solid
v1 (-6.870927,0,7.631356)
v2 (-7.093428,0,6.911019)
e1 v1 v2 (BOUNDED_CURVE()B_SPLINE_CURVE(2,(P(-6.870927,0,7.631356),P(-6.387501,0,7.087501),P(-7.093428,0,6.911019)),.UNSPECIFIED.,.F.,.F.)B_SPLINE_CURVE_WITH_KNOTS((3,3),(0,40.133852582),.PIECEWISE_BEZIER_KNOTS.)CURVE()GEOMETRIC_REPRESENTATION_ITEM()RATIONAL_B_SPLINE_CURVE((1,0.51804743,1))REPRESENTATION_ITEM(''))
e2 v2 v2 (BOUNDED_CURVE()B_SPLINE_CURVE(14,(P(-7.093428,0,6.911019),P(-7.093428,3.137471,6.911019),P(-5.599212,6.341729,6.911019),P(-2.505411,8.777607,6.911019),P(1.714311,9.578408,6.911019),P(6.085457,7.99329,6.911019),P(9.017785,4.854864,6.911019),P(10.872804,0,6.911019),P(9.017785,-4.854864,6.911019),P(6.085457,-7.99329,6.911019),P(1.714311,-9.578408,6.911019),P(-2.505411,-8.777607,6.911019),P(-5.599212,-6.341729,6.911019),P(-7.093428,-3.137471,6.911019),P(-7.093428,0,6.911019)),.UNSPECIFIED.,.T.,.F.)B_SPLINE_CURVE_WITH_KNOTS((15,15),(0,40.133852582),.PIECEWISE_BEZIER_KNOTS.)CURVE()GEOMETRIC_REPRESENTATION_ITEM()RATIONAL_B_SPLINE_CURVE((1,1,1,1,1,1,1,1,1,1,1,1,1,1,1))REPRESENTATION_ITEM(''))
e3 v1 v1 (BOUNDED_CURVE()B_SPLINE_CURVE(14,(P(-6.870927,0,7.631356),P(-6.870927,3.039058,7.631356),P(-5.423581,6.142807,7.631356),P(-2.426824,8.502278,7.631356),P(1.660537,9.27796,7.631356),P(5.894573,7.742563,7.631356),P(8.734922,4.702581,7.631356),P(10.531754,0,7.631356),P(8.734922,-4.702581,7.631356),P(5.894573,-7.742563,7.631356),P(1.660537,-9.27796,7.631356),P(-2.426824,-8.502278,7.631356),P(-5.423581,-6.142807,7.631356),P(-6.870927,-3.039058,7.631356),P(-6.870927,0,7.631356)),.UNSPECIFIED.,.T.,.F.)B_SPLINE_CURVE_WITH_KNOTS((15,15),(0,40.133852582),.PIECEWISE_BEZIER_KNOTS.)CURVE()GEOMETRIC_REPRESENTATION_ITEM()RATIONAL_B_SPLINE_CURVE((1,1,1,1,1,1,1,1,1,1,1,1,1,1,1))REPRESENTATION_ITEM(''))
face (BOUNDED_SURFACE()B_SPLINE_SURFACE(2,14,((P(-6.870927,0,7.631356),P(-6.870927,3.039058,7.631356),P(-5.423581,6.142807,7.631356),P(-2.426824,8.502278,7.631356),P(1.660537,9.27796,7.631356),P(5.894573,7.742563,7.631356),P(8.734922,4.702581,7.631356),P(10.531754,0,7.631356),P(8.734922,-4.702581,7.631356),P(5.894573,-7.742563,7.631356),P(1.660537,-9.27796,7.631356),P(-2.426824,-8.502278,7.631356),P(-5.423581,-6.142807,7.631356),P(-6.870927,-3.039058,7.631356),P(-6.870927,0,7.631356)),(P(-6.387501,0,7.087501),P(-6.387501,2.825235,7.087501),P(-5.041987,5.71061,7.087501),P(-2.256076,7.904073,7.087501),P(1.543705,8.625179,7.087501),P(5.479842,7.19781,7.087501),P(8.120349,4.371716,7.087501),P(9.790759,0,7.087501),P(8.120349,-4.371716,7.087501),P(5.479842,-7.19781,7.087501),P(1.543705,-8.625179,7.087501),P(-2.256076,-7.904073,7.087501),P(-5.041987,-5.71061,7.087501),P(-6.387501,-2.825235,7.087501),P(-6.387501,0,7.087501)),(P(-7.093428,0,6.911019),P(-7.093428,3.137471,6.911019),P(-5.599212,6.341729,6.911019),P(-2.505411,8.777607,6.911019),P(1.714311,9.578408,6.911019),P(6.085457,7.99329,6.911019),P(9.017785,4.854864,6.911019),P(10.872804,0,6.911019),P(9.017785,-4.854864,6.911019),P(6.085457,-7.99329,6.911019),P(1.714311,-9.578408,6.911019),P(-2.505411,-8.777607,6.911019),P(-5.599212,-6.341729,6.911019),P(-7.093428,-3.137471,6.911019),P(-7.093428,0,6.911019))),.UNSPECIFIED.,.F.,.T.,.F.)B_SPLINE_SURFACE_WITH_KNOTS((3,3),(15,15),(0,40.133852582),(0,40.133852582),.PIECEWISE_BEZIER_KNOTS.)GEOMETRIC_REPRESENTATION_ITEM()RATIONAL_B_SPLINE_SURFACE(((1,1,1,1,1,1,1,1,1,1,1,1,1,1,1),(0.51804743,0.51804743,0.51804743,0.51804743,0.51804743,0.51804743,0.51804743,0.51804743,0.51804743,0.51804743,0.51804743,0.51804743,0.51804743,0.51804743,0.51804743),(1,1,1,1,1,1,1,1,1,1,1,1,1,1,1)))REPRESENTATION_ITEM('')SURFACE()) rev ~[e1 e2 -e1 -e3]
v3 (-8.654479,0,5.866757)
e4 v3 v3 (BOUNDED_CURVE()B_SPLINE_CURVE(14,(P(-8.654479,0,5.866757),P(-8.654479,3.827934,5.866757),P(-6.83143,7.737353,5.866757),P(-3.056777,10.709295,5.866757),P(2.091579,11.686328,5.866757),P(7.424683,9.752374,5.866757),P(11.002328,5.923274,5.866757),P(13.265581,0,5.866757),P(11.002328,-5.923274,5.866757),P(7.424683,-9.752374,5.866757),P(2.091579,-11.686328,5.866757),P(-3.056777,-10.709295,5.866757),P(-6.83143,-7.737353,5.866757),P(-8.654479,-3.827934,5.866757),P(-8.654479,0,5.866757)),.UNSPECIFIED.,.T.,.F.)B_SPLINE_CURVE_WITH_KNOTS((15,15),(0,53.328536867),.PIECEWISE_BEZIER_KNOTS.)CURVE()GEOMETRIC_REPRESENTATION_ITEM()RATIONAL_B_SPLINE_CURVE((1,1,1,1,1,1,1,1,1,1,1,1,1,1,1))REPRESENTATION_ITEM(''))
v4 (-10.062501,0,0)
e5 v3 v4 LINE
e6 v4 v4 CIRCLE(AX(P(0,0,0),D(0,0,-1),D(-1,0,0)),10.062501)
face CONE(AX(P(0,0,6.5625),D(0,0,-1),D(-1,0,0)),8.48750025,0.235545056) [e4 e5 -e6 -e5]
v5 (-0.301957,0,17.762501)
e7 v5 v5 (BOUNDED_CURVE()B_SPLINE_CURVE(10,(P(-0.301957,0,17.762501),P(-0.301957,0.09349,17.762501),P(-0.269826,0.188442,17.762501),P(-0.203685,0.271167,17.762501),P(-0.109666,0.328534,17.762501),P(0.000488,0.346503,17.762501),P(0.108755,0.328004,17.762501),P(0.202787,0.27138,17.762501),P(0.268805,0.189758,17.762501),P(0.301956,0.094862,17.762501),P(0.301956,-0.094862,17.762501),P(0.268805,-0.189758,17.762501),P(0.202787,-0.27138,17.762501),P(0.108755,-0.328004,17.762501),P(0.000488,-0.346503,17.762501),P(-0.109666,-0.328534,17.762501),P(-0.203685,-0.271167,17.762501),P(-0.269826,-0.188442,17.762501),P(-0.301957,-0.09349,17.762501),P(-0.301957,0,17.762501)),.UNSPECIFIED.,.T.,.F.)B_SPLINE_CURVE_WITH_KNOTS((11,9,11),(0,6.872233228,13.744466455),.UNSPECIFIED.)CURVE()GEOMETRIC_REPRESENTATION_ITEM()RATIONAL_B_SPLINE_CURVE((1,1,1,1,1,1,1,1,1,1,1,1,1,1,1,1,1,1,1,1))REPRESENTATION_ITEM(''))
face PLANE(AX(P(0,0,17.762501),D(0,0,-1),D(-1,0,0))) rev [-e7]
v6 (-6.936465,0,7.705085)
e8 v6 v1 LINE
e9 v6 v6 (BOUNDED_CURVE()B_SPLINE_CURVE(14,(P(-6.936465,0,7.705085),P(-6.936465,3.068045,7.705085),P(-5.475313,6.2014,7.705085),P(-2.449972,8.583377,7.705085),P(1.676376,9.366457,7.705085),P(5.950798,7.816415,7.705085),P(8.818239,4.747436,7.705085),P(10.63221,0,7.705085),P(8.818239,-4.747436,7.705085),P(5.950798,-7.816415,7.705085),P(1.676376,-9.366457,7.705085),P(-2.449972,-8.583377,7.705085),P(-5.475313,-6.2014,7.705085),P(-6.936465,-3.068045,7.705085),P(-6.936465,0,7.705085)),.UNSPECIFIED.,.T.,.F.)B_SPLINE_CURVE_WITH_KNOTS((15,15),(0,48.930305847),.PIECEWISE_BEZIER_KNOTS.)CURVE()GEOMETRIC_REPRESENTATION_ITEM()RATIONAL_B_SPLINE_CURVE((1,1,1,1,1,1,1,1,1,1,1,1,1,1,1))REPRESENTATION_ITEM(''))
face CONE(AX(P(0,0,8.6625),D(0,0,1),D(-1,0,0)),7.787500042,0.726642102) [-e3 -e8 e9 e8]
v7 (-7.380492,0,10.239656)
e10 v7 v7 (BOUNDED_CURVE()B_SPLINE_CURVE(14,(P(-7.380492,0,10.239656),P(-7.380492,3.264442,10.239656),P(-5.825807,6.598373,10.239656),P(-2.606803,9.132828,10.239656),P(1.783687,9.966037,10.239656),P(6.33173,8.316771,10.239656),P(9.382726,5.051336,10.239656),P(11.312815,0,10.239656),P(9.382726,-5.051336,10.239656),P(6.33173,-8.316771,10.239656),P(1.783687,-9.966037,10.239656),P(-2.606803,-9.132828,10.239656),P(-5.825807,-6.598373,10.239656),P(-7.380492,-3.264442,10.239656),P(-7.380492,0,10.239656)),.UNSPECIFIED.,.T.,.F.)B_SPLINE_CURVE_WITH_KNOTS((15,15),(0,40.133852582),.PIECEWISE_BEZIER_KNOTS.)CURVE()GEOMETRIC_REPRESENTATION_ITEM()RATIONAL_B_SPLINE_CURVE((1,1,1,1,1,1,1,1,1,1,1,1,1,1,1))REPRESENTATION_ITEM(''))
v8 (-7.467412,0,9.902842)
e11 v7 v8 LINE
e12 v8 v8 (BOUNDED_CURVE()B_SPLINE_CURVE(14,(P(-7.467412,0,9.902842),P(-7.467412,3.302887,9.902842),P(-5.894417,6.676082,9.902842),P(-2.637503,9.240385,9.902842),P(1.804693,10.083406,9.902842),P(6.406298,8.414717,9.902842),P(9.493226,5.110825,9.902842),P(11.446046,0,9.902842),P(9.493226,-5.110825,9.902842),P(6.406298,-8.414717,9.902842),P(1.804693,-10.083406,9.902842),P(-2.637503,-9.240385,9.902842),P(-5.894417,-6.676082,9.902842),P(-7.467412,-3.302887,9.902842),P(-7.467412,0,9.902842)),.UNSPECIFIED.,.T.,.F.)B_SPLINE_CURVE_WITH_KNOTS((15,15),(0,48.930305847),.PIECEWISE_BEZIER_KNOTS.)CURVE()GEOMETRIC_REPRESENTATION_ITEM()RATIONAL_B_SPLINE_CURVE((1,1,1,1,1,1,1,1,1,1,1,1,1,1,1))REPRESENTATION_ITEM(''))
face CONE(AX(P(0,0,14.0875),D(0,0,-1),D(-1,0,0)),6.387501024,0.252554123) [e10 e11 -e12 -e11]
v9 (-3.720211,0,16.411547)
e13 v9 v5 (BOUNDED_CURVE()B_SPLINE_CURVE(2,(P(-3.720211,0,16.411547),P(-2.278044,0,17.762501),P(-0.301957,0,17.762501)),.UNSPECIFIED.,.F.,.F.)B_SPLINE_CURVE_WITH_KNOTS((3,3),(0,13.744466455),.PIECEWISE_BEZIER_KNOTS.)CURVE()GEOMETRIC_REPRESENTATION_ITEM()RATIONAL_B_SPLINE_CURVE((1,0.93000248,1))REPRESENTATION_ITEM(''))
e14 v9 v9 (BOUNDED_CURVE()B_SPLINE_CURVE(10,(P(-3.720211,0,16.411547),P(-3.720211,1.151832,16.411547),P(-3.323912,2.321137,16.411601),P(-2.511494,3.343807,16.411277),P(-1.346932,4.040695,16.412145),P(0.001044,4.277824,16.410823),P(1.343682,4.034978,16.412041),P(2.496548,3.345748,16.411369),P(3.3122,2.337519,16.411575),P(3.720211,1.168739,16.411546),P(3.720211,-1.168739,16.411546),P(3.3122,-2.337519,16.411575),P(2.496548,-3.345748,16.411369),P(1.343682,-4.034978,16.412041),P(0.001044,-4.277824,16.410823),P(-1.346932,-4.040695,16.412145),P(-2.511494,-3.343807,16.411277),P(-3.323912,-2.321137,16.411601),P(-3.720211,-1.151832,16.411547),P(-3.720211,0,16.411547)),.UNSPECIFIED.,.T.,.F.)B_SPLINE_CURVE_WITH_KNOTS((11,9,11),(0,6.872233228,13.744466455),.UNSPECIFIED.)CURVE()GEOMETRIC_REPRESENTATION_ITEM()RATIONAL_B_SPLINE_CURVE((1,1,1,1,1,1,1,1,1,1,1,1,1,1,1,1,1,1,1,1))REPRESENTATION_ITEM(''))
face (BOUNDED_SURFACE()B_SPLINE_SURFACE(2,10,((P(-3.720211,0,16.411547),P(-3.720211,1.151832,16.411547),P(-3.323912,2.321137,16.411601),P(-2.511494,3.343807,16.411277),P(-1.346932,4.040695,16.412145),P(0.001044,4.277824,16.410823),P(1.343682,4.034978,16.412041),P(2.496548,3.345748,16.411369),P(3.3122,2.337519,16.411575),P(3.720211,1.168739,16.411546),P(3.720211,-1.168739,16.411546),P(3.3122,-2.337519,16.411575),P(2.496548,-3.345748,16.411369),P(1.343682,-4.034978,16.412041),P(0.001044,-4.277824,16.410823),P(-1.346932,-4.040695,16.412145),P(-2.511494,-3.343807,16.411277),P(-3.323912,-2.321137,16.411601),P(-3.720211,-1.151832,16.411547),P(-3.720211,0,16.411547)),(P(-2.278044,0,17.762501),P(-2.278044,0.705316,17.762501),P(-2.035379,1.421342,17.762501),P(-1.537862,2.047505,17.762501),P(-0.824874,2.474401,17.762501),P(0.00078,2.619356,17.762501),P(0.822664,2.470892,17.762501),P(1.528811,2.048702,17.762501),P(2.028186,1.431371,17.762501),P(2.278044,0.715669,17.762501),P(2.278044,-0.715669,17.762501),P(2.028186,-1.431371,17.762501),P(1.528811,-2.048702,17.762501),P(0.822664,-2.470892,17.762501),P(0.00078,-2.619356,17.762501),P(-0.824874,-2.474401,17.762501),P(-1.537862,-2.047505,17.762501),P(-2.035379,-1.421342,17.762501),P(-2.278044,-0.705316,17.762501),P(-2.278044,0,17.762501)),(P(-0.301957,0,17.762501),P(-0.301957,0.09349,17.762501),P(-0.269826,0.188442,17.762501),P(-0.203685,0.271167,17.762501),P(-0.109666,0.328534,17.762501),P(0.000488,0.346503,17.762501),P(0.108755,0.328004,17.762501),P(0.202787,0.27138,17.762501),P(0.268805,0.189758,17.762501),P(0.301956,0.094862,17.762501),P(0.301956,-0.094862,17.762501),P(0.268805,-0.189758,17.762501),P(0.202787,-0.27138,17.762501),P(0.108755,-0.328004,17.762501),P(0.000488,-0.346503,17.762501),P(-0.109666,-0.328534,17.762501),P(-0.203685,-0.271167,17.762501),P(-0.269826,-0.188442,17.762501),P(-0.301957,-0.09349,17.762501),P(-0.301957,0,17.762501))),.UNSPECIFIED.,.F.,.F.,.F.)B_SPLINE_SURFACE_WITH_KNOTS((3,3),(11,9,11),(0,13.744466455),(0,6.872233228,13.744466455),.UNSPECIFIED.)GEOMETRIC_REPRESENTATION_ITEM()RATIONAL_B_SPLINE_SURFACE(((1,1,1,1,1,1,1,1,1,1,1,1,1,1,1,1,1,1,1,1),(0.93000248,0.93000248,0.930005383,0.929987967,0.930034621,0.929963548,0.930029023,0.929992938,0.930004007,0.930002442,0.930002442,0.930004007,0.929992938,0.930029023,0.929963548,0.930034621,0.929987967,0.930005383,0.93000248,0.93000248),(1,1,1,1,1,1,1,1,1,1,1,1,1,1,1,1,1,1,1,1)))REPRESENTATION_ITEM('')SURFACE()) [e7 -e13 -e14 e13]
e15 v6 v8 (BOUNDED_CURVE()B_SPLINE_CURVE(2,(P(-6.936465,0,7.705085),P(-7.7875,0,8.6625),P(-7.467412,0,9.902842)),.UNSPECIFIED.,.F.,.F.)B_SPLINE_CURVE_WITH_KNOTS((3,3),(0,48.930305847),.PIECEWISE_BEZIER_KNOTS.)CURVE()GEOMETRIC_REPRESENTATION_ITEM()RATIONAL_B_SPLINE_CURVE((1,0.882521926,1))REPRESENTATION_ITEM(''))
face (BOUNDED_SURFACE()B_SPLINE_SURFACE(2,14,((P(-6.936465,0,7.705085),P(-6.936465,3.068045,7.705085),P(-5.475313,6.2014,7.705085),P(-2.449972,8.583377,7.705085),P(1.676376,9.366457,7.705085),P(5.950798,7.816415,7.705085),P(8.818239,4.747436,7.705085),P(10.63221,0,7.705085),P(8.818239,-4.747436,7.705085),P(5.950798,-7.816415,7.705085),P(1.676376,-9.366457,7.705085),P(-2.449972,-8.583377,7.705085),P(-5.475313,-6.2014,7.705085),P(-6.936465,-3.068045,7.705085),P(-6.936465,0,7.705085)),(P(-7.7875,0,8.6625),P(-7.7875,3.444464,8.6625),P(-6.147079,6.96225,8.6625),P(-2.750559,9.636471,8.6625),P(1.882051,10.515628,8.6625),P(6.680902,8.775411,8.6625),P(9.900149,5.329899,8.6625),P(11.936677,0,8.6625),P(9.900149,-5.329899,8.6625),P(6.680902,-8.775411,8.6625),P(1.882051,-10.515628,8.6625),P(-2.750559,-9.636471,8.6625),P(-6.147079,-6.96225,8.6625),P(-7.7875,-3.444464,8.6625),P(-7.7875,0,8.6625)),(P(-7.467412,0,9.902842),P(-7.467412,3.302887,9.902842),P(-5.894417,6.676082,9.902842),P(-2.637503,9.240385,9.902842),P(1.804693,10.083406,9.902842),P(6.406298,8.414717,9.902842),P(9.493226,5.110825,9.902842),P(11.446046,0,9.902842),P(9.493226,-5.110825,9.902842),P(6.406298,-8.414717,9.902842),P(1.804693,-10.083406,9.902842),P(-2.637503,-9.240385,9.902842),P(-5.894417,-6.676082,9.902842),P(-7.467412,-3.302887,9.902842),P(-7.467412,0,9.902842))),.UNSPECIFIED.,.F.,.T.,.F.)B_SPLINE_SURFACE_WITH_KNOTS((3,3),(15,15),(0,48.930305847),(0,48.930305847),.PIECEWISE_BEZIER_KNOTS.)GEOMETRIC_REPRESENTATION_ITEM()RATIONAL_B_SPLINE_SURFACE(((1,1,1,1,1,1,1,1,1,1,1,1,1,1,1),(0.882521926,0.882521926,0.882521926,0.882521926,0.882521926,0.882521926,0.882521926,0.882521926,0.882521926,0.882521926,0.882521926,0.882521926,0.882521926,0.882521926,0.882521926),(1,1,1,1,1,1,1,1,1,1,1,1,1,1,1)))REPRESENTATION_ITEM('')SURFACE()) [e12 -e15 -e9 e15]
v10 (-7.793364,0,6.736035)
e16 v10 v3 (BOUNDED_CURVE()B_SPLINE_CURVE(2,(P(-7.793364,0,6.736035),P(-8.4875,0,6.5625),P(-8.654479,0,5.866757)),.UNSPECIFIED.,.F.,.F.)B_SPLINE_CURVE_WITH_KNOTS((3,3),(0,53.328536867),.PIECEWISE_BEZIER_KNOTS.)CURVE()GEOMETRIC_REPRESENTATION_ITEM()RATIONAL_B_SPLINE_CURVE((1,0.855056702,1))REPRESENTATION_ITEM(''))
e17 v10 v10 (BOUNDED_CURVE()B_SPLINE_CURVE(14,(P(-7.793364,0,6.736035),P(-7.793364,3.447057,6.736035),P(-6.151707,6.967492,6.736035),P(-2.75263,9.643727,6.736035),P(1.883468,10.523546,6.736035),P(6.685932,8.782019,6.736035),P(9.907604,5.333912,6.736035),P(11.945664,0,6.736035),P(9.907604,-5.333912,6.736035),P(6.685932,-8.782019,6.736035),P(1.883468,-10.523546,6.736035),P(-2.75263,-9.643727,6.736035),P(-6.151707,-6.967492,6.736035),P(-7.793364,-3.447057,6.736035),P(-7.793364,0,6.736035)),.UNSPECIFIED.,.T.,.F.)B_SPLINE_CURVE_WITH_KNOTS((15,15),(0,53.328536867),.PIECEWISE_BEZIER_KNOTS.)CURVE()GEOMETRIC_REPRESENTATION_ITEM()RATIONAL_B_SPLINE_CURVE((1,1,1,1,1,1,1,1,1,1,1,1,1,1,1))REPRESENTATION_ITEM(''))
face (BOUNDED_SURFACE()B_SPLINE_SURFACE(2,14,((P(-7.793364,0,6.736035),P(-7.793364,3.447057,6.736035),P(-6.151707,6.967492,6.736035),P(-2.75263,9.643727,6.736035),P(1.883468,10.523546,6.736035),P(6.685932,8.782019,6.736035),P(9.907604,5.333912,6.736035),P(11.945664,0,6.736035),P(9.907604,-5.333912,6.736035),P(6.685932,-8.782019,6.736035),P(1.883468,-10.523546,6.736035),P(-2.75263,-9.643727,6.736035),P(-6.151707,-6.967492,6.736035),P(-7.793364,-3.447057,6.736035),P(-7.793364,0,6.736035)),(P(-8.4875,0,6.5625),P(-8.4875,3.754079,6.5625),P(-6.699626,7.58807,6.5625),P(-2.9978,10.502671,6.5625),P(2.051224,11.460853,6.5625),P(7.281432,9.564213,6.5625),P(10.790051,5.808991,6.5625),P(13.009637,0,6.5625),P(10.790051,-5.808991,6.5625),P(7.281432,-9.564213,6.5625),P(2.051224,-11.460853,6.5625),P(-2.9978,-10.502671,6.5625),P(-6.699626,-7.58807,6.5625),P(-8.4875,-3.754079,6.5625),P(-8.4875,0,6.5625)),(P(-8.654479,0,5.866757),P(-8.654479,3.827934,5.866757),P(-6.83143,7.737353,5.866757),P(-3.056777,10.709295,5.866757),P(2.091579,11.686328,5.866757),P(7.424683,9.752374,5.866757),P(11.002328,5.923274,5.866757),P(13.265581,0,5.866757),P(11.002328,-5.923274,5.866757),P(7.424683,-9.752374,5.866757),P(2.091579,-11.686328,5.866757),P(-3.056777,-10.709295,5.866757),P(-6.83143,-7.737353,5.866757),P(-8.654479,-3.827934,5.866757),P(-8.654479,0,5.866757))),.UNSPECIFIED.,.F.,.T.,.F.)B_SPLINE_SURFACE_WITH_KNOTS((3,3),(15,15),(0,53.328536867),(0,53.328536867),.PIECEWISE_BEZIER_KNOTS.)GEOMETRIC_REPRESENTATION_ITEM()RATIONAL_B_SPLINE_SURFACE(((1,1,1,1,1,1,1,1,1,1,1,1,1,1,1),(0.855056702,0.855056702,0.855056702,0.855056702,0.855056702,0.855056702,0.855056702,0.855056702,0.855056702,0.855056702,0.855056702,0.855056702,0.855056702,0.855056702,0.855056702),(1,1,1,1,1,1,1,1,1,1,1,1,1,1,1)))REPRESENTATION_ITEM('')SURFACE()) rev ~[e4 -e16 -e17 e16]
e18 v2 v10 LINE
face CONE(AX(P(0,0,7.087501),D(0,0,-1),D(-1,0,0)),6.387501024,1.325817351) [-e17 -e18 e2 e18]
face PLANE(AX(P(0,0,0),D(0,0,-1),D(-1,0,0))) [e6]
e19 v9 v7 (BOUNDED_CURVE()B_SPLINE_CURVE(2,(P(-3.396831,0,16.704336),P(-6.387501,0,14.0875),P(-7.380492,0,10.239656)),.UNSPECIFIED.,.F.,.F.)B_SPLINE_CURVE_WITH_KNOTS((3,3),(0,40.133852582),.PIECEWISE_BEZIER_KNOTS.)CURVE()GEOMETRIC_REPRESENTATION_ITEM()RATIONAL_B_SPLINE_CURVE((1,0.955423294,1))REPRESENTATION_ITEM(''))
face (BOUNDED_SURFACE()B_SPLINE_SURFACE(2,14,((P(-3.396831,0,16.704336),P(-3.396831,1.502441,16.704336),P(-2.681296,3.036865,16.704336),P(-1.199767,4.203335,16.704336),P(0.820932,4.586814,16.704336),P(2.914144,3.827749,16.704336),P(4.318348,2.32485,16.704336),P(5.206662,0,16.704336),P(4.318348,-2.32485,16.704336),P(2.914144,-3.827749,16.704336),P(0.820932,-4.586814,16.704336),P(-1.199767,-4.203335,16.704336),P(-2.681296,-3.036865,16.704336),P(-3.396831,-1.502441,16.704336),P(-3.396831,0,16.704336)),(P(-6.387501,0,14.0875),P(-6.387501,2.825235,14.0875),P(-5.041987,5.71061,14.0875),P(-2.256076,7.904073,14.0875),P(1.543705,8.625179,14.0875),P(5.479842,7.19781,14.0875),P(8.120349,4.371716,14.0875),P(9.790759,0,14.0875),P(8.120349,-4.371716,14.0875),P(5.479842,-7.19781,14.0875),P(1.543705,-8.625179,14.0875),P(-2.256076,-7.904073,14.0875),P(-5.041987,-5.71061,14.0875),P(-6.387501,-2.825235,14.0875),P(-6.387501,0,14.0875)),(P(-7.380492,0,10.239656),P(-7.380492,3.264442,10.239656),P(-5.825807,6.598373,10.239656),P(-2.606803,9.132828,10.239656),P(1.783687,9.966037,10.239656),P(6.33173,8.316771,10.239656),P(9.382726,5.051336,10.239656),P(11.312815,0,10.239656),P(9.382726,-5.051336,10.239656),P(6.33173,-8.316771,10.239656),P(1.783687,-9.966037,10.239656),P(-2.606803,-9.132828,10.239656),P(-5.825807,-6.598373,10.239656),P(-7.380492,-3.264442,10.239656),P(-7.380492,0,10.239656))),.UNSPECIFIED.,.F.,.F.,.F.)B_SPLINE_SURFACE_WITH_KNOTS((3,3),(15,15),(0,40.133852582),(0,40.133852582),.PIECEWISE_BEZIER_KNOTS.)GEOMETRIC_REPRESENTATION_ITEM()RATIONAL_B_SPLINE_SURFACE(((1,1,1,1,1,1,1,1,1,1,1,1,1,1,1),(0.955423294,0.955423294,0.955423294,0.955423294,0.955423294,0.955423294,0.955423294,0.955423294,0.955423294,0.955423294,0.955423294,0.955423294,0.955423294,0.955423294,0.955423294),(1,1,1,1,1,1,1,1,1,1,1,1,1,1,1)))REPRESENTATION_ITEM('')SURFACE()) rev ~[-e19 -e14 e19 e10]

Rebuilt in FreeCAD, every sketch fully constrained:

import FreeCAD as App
import Part
import Sketcher

V = App.Vector
Q = App.Units.Quantity


def edges_at(feature, points):
    """Names of the edges that pass closest to the given points."""
    edges = feature.Shape.Edges
    near = lambda p: min(range(len(edges)), key=lambda i: edges[i].distToShape(Part.Vertex(*p))[0])
    return sorted({f"Edge{near(p) + 1}" for p in points})

doc = App.newDocument("Part")
body = doc.addObject("PartDesign::Body", "Body")

# Sketch on XZ plane
sketch1 = doc.addObject("Sketcher::SketchObject", "Sketch")
body.addObject(sketch1)
sketch1.AttachmentSupport = (doc.XZ_Plane, [""])
sketch1.MapMode = "FlatFace"
sketch1.addGeometry(Part.LineSegment(V(-10.1, 0, 0), V(0, 0, 0)), False)
sketch1.addGeometry(Part.LineSegment(V(0, 0, 0), V(0, 17.8, 0)), False)
sketch1.addGeometry(Part.LineSegment(V(0, 17.8, 0), V(-2.2, 17.8, 0)), False)
sketch1.addGeometry(Part.LineSegment(V(-2.2, 17.8, 0), V(-6.4, 14.1, 0)), False)
sketch1.addGeometry(Part.LineSegment(V(-6.4, 14.1, 0), V(-7.8, 8.7, 0)), False)
sketch1.addGeometry(Part.LineSegment(V(-7.8, 8.7, 0), V(-6.4, 7.1, 0)), False)
sketch1.addGeometry(Part.LineSegment(V(-6.4, 7.1, 0), V(-8.5, 6.6, 0)), False)
sketch1.addGeometry(Part.LineSegment(V(-8.5, 6.6, 0), V(-10.1, 0, 0)), False)
sketch1.addConstraint(Sketcher.Constraint("Coincident", 0, 2, 1, 1))
sketch1.addConstraint(Sketcher.Constraint("Coincident", 1, 2, 2, 1))
sketch1.addConstraint(Sketcher.Constraint("Coincident", 2, 2, 3, 1))
sketch1.addConstraint(Sketcher.Constraint("Coincident", 3, 2, 4, 1))
sketch1.addConstraint(Sketcher.Constraint("Coincident", 4, 2, 5, 1))
sketch1.addConstraint(Sketcher.Constraint("Coincident", 5, 2, 6, 1))
sketch1.addConstraint(Sketcher.Constraint("Coincident", 6, 2, 7, 1))
sketch1.addConstraint(Sketcher.Constraint("Coincident", 7, 2, 0, 1))
sketch1.addConstraint(Sketcher.Constraint("Horizontal", 0))
sketch1.addConstraint(Sketcher.Constraint("Vertical", 1))
sketch1.addConstraint(Sketcher.Constraint("Horizontal", 2))
sketch1.addConstraint(Sketcher.Constraint("Coincident", 0, 2, -1, 1))
sketch1.addConstraint(Sketcher.Constraint("Vertical", 3, 2, 5, 2))
sketch1.addConstraint(Sketcher.Constraint("DistanceY", 5, 2, 3, 2, Q("6.999999 mm")))
sketch1.addConstraint(Sketcher.Constraint("DistanceX", 3, 2, 2, 2, Q("4.200001 mm")))
sketch1.addConstraint(Sketcher.Constraint("DistanceX", 4, 2, 3, 2, Q("1.399999 mm")))
sketch1.addConstraint(Sketcher.Constraint("DistanceY", 4, 2, 2, 2, Q("9.1 mm")))
sketch1.addConstraint(Sketcher.Constraint("DistanceX", 6, 2, 5, 2, Q("2.099999 mm")))
sketch1.addConstraint(Sketcher.Constraint("DistanceY", 6, 2, 4, 2, Q("2.1 mm")))
sketch1.addConstraint(Sketcher.Constraint("DistanceX", 0, 1, 0, 2, Q("10.062501 mm")))
sketch1.addConstraint(Sketcher.Constraint("DistanceX", 2, 2, 2, 1, Q("2.1875 mm")))
sketch1.addConstraint(Sketcher.Constraint("DistanceY", 1, 1, 1, 2, Q("17.762501 mm")))
sketch1.addConstraint(Sketcher.Constraint("DistanceY", 3, 2, 2, 2, Q("3.675001 mm")))
revolution = doc.addObject("PartDesign::Revolution", "Revolution")
body.addObject(revolution)
revolution.Profile = sketch1
revolution.ReferenceAxis = (sketch1, ["V_Axis"])
revolution.Angle = 360
doc.recompute()

fillet = doc.addObject("PartDesign::Fillet", "Fillet")
body.addObject(fillet)
fillet.Base = (revolution, edges_at(revolution, [(6.388, 0, 14.088)]))
fillet.Radius = 12.859945
doc.recompute()

fillet2 = doc.addObject("PartDesign::Fillet", "Fillet001")
body.addObject(fillet2)
fillet2.Base = (fillet, edges_at(fillet, [(8.488, 0, 6.563)]))
fillet2.Radius = 1.17985
doc.recompute()

fillet3 = doc.addObject("PartDesign::Fillet", "Fillet002")
body.addObject(fillet3)
fillet3.Base = (fillet2, edges_at(fillet2, [(7.788, 0, 8.663)]))
fillet3.Radius = 2.403913
doc.recompute()

fillet4 = doc.addObject("PartDesign::Fillet", "Fillet003")
body.addObject(fillet4)
fillet4.Base = (fillet3, edges_at(fillet3, [(-6.662, 0, 7.396), (6.936, 0, 7.705), (6.388, 0, 7.088)]))
fillet4.Radius = 0.440706
doc.recompute()

fillet5 = doc.addObject("PartDesign::Fillet", "Fillet004")
body.addObject(fillet5)
fillet5.Base = (fillet4, edges_at(fillet4, [(-2.792, 0, 17.233), (3.397, 0, 16.704), (2.187, 0, 17.763)]))
fillet5.Radius = 5

doc.recompute()
